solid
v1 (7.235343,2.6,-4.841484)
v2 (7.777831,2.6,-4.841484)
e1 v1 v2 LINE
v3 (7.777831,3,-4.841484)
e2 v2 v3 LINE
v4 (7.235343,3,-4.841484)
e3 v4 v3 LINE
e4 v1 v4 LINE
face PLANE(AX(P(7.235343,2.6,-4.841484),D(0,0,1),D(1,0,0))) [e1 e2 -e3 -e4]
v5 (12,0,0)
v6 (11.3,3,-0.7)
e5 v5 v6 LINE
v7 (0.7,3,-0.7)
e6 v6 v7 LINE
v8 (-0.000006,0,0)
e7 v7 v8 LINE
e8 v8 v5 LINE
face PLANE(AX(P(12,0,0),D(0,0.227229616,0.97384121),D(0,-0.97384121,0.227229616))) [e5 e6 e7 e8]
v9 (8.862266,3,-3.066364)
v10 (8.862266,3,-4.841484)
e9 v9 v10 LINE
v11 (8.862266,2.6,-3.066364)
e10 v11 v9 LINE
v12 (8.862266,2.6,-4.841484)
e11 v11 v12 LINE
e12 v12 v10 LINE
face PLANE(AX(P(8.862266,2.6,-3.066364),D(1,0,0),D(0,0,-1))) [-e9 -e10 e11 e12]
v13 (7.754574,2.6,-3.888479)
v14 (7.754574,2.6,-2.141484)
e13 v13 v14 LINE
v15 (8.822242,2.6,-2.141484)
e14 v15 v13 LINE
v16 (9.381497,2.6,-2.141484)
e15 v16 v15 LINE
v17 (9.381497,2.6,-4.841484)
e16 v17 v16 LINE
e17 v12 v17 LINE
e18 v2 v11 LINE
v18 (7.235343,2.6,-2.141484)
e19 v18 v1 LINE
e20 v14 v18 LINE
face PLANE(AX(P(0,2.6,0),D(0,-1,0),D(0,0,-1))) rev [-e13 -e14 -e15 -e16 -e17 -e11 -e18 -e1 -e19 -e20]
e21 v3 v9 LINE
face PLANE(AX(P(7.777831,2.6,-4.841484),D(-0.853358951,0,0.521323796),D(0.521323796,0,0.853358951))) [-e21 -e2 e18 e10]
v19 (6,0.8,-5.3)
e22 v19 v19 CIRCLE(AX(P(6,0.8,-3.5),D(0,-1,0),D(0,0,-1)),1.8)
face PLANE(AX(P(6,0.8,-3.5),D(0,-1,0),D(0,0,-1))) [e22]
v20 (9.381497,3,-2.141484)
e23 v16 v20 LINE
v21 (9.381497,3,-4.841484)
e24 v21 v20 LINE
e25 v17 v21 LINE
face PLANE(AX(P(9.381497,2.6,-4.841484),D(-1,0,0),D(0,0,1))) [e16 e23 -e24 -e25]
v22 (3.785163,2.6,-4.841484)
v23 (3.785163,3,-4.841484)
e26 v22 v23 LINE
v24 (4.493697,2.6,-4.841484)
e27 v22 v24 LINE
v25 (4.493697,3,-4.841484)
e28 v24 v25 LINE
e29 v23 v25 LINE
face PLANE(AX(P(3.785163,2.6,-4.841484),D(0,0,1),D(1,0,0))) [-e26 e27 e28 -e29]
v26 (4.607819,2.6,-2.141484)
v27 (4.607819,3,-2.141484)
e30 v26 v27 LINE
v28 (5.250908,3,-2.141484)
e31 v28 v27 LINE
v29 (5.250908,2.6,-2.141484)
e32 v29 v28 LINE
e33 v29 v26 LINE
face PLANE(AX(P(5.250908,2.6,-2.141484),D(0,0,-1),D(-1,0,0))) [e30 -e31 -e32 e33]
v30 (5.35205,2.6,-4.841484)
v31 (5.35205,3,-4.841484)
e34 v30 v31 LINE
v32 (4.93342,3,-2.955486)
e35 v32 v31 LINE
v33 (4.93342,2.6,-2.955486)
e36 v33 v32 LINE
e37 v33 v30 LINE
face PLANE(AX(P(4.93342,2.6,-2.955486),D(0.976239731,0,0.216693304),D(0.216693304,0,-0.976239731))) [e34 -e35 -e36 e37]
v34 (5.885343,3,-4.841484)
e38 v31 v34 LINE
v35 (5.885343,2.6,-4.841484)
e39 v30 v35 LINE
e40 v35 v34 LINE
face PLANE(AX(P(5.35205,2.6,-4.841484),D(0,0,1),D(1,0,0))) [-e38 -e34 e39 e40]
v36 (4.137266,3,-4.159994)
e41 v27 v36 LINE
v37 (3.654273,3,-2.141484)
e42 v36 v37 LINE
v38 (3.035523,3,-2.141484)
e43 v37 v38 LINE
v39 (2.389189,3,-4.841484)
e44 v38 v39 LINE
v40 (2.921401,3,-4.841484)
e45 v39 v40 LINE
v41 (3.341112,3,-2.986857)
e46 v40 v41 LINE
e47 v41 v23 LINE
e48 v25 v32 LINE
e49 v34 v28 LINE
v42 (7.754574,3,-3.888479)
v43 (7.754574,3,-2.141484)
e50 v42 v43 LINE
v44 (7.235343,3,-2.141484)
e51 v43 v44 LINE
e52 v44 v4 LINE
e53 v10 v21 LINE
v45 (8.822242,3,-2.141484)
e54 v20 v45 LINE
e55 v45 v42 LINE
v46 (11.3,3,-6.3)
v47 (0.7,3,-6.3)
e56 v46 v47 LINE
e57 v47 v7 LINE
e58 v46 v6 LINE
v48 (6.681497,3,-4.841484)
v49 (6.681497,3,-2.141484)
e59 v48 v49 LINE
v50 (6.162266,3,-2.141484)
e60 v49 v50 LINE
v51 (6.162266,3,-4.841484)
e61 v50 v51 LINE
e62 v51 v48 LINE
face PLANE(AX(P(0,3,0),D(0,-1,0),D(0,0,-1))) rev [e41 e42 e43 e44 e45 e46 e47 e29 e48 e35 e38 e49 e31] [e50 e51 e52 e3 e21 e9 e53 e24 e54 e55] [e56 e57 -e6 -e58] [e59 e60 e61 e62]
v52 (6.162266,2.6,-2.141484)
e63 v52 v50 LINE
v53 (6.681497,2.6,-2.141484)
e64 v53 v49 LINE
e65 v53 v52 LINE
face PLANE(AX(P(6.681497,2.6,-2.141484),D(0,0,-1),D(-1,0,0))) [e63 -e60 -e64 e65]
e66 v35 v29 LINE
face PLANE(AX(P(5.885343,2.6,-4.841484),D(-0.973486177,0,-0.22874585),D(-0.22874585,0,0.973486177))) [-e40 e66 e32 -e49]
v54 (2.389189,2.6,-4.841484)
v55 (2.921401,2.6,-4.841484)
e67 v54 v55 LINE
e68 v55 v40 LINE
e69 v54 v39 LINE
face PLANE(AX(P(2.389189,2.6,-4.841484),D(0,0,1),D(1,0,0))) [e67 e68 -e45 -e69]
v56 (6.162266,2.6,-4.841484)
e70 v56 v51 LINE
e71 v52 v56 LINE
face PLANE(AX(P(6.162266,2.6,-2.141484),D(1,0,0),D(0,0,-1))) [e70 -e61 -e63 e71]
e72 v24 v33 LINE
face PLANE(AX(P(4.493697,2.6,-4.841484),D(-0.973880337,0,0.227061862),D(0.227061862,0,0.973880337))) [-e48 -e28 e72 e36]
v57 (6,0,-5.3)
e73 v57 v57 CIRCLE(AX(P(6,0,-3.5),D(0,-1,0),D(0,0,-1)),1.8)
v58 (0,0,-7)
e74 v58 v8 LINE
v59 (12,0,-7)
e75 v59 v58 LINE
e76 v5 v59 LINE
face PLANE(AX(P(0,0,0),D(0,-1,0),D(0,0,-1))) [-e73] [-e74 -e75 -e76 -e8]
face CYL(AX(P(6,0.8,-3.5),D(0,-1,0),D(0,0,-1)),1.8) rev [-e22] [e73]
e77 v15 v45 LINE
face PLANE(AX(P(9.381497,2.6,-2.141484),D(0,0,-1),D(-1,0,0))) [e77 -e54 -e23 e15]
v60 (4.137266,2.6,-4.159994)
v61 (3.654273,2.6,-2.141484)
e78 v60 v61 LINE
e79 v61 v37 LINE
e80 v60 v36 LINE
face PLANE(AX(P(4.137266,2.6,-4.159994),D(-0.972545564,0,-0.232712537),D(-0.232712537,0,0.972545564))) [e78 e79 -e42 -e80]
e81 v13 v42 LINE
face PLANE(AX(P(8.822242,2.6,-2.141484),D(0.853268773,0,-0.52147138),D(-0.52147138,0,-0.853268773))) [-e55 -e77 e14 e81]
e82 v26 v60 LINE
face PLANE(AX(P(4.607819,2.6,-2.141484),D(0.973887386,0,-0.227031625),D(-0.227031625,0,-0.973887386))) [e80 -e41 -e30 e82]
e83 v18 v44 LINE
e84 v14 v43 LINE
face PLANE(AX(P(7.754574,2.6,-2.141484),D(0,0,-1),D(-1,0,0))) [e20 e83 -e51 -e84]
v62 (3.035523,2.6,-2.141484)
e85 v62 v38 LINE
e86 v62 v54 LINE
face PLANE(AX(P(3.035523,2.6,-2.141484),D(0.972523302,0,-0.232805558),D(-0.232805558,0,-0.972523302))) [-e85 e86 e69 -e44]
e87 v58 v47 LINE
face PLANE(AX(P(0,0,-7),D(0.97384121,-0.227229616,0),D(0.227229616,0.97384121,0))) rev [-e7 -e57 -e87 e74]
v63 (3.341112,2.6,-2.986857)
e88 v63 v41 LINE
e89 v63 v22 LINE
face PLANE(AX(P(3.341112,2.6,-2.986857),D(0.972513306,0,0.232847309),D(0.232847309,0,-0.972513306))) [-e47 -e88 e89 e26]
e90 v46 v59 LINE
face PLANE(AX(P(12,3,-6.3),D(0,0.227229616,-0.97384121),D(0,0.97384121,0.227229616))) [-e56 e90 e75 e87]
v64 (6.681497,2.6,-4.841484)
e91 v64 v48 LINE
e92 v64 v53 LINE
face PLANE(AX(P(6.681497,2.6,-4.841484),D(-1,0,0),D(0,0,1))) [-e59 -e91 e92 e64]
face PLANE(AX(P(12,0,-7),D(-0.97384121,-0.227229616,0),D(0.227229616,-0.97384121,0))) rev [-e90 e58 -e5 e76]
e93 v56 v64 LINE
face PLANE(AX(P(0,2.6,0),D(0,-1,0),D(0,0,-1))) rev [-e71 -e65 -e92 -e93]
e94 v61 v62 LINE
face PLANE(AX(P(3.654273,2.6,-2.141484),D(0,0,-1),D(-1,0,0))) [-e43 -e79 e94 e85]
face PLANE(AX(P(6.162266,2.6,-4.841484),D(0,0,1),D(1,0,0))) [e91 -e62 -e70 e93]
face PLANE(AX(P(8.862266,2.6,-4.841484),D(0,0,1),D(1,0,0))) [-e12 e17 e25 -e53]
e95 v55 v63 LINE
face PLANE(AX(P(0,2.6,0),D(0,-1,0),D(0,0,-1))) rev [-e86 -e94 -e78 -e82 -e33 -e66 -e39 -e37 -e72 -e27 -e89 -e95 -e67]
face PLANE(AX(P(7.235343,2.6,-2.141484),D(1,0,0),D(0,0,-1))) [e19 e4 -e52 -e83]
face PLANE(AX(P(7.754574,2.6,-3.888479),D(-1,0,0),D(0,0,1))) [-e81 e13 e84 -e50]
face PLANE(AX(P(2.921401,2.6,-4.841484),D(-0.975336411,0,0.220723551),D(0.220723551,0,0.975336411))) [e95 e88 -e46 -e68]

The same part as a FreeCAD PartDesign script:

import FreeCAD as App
import Part
import Sketcher

V = App.Vector
Q = App.Units.Quantity

doc = App.newDocument("Part")
params = doc.addObject("Spreadsheet::Sheet", "Params")
for row, (alias, value) in enumerate([
    ("sketch1_width", "12 mm"),
    ("sketch1_height", "7 mm"),
    ("pad1_length", "3 mm"),
    ("sketch2_height", "3 mm"),
    ("sketch2_width", "0.7 mm"),
    ("pocket1_length", "7 mm"),
    ("sketch3_width", "3 mm"),
    ("sketch3_height", "0.7 mm"),
    ("sketch4_diameter", "3.6 mm"),
    ("pocket3_length", "0.8 mm"),
    ("sketch5_height", "2.7 mm"),
    ("pocket4_length", "0.4 mm"),
], start=1):
    params.set(f"A{row}", alias)
    params.set(f"B{row}", "=" + value)
    params.setAlias(f"B{row}", alias)

body = doc.addObject("PartDesign::Body", "Body")

sketch1 = body.newObject("Sketcher::SketchObject", "Sketch")
sketch1.AttachmentSupport = (doc.getObject("XZ_Plane"), [""])
sketch1.MapMode = "FlatFace"
sketch1.addGeometry([
    Part.LineSegment(V(0, -7, 0), V(0, 0, 0)),
    Part.LineSegment(V(0, 0, 0), V(12, 0, 0)),
    Part.LineSegment(V(12, 0, 0), V(12, -7, 0)),
    Part.LineSegment(V(12, -7, 0), V(0, -7, 0)),
], False)
sketch1.addConstraint([
    Sketcher.Constraint("Coincident", 0, 2, 1, 1),
    Sketcher.Constraint("Coincident", 1, 2, 2, 1),
    Sketcher.Constraint("Coincident", 2, 2, 3, 1),
    Sketcher.Constraint("Coincident", 3, 2, 0, 1),
    Sketcher.Constraint("Vertical", 0),
    Sketcher.Constraint("Horizontal", 1),
    Sketcher.Constraint("Vertical", 2),
    Sketcher.Constraint("Horizontal", 3),
    Sketcher.Constraint("Coincident", 0, 2, -1, 1),
    Sketcher.Constraint("DistanceX", 1, 1, 1, 2, Q("12 mm")),
    Sketcher.Constraint("DistanceY", 0, 1, 0, 2, Q("7 mm")),
])
sketch1.setExpression("Constraints[9]", "Params.sketch1_width")
sketch1.setExpression("Constraints[10]", "Params.sketch1_height")
pad1 = body.newObject("PartDesign::Pad", "Pad")
pad1.Profile = sketch1
pad1.setExpression("Length", "Params.pad1_length")
pad1.Reversed = True

sketch2 = body.newObject("Sketcher::SketchObject", "Sketch001")
sketch2.AttachmentSupport = (doc.getObject("XY_Plane"), [""])
sketch2.MapMode = "FlatFace"
sketch2.addGeometry([
    Part.LineSegment(V(0, 0, 0), V(0.7, 3, 0)),
    Part.LineSegment(V(0.7, 3, 0), V(0, 3, 0)),
    Part.LineSegment(V(0, 3, 0), V(0, 0, 0)),
    Part.LineSegment(V(11.3, 3, 0), V(12, 0, 0)),
    Part.LineSegment(V(12, 0, 0), V(12, 3, 0)),
    Part.LineSegment(V(12, 3, 0), V(11.3, 3, 0)),
], False)
sketch2.addConstraint([
    Sketcher.Constraint("Coincident", 0, 2, 1, 1),
    Sketcher.Constraint("Coincident", 1, 2, 2, 1),
    Sketcher.Constraint("Coincident", 2, 2, 0, 1),
    Sketcher.Constraint("Coincident", 3, 2, 4, 1),
    Sketcher.Constraint("Coincident", 4, 2, 5, 1),
    Sketcher.Constraint("Coincident", 5, 2, 3, 1),
    Sketcher.Constraint("Horizontal", 1),
    Sketcher.Constraint("Vertical", 2),
    Sketcher.Constraint("Vertical", 4),
    Sketcher.Constraint("Horizontal", 5),
    Sketcher.Constraint("Coincident", 2, 2, -1, 1),
    Sketcher.Constraint("PointOnObject", 3, 2, -1),
    Sketcher.Constraint("Horizontal", 1, 2, 4, 2),
    Sketcher.Constraint("Equal", 1, 5),
    Sketcher.Constraint("DistanceY", 2, 2, 2, 1, Q("3 mm")),
    Sketcher.Constraint("DistanceX", 1, 2, 1, 1, Q("0.7 mm")),
    Sketcher.Constraint("DistanceX", -1, 1, 3, 2, Q("12 mm")),
])
sketch2.setExpression("Constraints[14]", "Params.sketch2_height")
sketch2.setExpression("Constraints[15]", "Params.sketch2_width")
pocket1 = body.newObject("PartDesign::Pocket", "Pocket")
pocket1.Profile = sketch2
pocket1.setExpression("Length", "Params.pocket1_length")

sketch3 = body.newObject("Sketcher::SketchObject", "Sketch002")
sketch3.AttachmentSupport = (doc.getObject("YZ_Plane"), [""])
sketch3.MapMode = "FlatFace"
sketch3.addGeometry([
    Part.LineSegment(V(0, 0, 0), V(3, -0.7, 0)),
    Part.LineSegment(V(3, -0.7, 0), V(3, 0, 0)),
    Part.LineSegment(V(3, 0, 0), V(0, 0, 0)),
    Part.LineSegment(V(3, -7, 0), V(3, -6.3, 0)),
    Part.LineSegment(V(3, -6.3, 0), V(0, -7, 0)),
    Part.LineSegment(V(0, -7, 0), V(3, -7, 0)),
], False)
sketch3.addConstraint([
    Sketcher.Constraint("Coincident", 0, 2, 1, 1),
    Sketcher.Constraint("Coincident", 1, 2, 2, 1),
    Sketcher.Constraint("Coincident", 2, 2, 0, 1),
    Sketcher.Constraint("Coincident", 3, 2, 4, 1),
    Sketcher.Constraint("Coincident", 4, 2, 5, 1),
    Sketcher.Constraint("Coincident", 5, 2, 3, 1),
    Sketcher.Constraint("Vertical", 1),
    Sketcher.Constraint("Horizontal", 2),
    Sketcher.Constraint("Vertical", 3),
    Sketcher.Constraint("Horizontal", 5),
    Sketcher.Constraint("Coincident", 2, 2, -1, 1),
    Sketcher.Constraint("PointOnObject", 4, 2, -2),
    Sketcher.Constraint("Vertical", 1, 2, 3, 2),
    Sketcher.Constraint("Equal", 1, 3),
    Sketcher.Constraint("DistanceX", 2, 2, 2, 1, Q("3 mm")),
    Sketcher.Constraint("DistanceY", 1, 1, 1, 2, Q("0.7 mm")),
    Sketcher.Constraint("DistanceY", 4, 2, -1, 1, Q("7 mm")),
])
sketch3.setExpression("Constraints[14]", "Params.sketch3_width")
sketch3.setExpression("Constraints[15]", "Params.sketch3_height")
pocket2 = body.newObject("PartDesign::Pocket", "Pocket001")
pocket2.Profile = sketch3
pocket2.Type = "ThroughAll"
pocket2.Midplane = True

sketch4 = body.newObject("Sketcher::SketchObject", "Sketch003")
sketch4.AttachmentSupport = (doc.getObject("XZ_Plane"), [""])
sketch4.MapMode = "FlatFace"
sketch4.addGeometry(Part.Circle(V(6, -3.5, 0), V(0, 0, 1), 1.8), False)
sketch4.addConstraint([
    Sketcher.Constraint("Diameter", 0, Q("3.6 mm")),
    Sketcher.Constraint("DistanceX", -1, 1, 0, 3, Q("6 mm")),
    Sketcher.Constraint("DistanceY", 0, 3, -1, 1, Q("3.5 mm")),
])
sketch4.setExpression("Constraints[0]", "Params.sketch4_diameter")
pocket3 = body.newObject("PartDesign::Pocket", "Pocket002")
pocket3.Profile = sketch4
pocket3.setExpression("Length", "Params.pocket3_length")

sketch5 = body.newObject("Sketcher::SketchObject", "Sketch004")
sketch5.AttachmentSupport = (doc.getObject("XZ_Plane"), [""])
sketch5.MapMode = "FlatFace"
sketch5.AttachmentOffset = App.Placement(V(0, 0, -3), App.Rotation())
sketch5.addGeometry([
    Part.LineSegment(V(2.4, -4.8, 0), V(3, -2.1, 0)),
    Part.LineSegment(V(3, -2.1, 0), V(3.7, -2.1, 0)),
    Part.LineSegment(V(3.7, -2.1, 0), V(4.1, -4.2, 0)),
    Part.LineSegment(V(4.1, -4.2, 0), V(4.6, -2.1, 0)),
    Part.LineSegment(V(4.6, -2.1, 0), V(5.3, -2.1, 0)),
    Part.LineSegment(V(5.3, -2.1, 0), V(5.9, -4.8, 0)),
    Part.LineSegment(V(5.9, -4.8, 0), V(5.4, -4.8, 0)),
    Part.LineSegment(V(5.4, -4.8, 0), V(4.9, -3, 0)),
    Part.LineSegment(V(4.9, -3, 0), V(4.5, -4.8, 0)),
    Part.LineSegment(V(4.5, -4.8, 0), V(3.8, -4.8, 0)),
    Part.LineSegment(V(3.8, -4.8, 0), V(3.3, -3, 0)),
    Part.LineSegment(V(3.3, -3, 0), V(2.9, -4.8, 0)),
    Part.LineSegment(V(2.9, -4.8, 0), V(2.4, -4.8, 0)),
    Part.LineSegment(V(6.2, -4.8, 0), V(6.2, -2.1, 0)),
    Part.LineSegment(V(6.2, -2.1, 0), V(6.7, -2.1, 0)),
    Part.LineSegment(V(6.7, -2.1, 0), V(6.7, -4.8, 0)),
    Part.LineSegment(V(6.7, -4.8, 0), V(6.2, -4.8, 0)),
    Part.LineSegment(V(7.2, -4.8, 0), V(7.2, -2.1, 0)),
    Part.LineSegment(V(7.2, -2.1, 0), V(7.8, -2.1, 0)),
    Part.LineSegment(V(7.8, -2.1, 0), V(7.8, -3.9, 0)),
    Part.LineSegment(V(7.8, -3.9, 0), V(8.8, -2.1, 0)),
    Part.LineSegment(V(8.8, -2.1, 0), V(9.4, -2.1, 0)),
    Part.LineSegment(V(9.4, -2.1, 0), V(9.4, -4.8, 0)),
    Part.LineSegment(V(9.4, -4.8, 0), V(8.9, -4.8, 0)),
    Part.LineSegment(V(8.9, -4.8, 0), V(8.9, -3.1, 0)),
    Part.LineSegment(V(8.9, -3.1, 0), V(7.8, -4.8, 0)),
    Part.LineSegment(V(7.8, -4.8, 0), V(7.2, -4.8, 0)),
], False)
sketch5.addConstraint([
    Sketcher.Constraint("Coincident", 0, 2, 1, 1),
    Sketcher.Constraint("Coincident", 1, 2, 2, 1),
    Sketcher.Constraint("Coincident", 2, 2, 3, 1),
    Sketcher.Constraint("Coincident", 3, 2, 4, 1),
    Sketcher.Constraint("Coincident", 4, 2, 5, 1),
    Sketcher.Constraint("Coincident", 5, 2, 6, 1),
    Sketcher.Constraint("Coincident", 6, 2, 7, 1),
    Sketcher.Constraint("Coincident", 7, 2, 8, 1),
    Sketcher.Constraint("Coincident", 8, 2, 9, 1),
    Sketcher.Constraint("Coincident", 9, 2, 10, 1),
    Sketcher.Constraint("Coincident", 10, 2, 11, 1),
    Sketcher.Constraint("Coincident", 11, 2, 12, 1),
    Sketcher.Constraint("Coincident", 12, 2, 0, 1),
    Sketcher.Constraint("Coincident", 13, 2, 14, 1),
    Sketcher.Constraint("Coincident", 14, 2, 15, 1),
    Sketcher.Constraint("Coincident", 15, 2, 16, 1),
    Sketcher.Constraint("Coincident", 16, 2, 13, 1),
    Sketcher.Constraint("Coincident", 17, 2, 18, 1),
    Sketcher.Constraint("Coincident", 18, 2, 19, 1),
    Sketcher.Constraint("Coincident", 19, 2, 20, 1),
    Sketcher.Constraint("Coincident", 20, 2, 21, 1),
    Sketcher.Constraint("Coincident", 21, 2, 22, 1),
    Sketcher.Constraint("Coincident", 22, 2, 23, 1),
    Sketcher.Constraint("Coincident", 23, 2, 24, 1),
    Sketcher.Constraint("Coincident", 24, 2, 25, 1),
    Sketcher.Constraint("Coincident", 25, 2, 26, 1),
    Sketcher.Constraint("Coincident", 26, 2, 17, 1),
    Sketcher.Constraint("Horizontal", 1),
    Sketcher.Constraint("Horizontal", 4),
    Sketcher.Constraint("Horizontal", 6),
    Sketcher.Constraint("Horizontal", 9),
    Sketcher.Constraint("Horizontal", 12),
    Sketcher.Constraint("Vertical", 13),
    Sketcher.Constraint("Horizontal", 14),
    Sketcher.Constraint("Vertical", 15),
    Sketcher.Constraint("Horizontal", 16),
    Sketcher.Constraint("Vertical", 17),
    Sketcher.Constraint("Horizontal", 18),
    Sketcher.Constraint("Vertical", 19),
    Sketcher.Constraint("Horizontal", 21),
    Sketcher.Constraint("Vertical", 22),
    Sketcher.Constraint("Horizontal", 23),
    Sketcher.Constraint("Vertical", 24),
    Sketcher.Constraint("Horizontal", 26),
    Sketcher.Constraint("Horizontal", 1, 2, 3, 2),
    Sketcher.Constraint("Horizontal", 6, 2, 8, 2),
    Sketcher.Constraint("Horizontal", 9, 2, 11, 2),
    Sketcher.Constraint("Horizontal", 4, 2, 13, 2),
    Sketcher.Constraint("Horizontal", 12, 2, 15, 2),
    Sketcher.Constraint("Horizontal", 14, 2, 17, 2),
    Sketcher.Constraint("Horizontal", 18, 2, 20, 2),
    Sketcher.Constraint("Horizontal", 16, 2, 22, 2),
    Sketcher.Constraint("Horizontal", 23, 2, 25, 2),
    Sketcher.Constraint("Equal", 16, 18),
    Sketcher.Constraint("Equal", 18, 23),
    Sketcher.Constraint("DistanceY", 13, 1, 13, 2, Q("2.7 mm")),
    Sketcher.Constraint("DistanceX", 14, 2, 21, 2, Q("2.7 mm")),
    Sketcher.Constraint("DistanceX", 5, 2, 26, 2, Q("1.35 mm")),
    Sketcher.Constraint("DistanceX", 2, 2, 16, 2, Q("2.025 mm")),
    Sketcher.Constraint("Distance", 7, Q("1.9319 mm")),
    Sketcher.Constraint("DistanceX", 1, 1, 1, 2, Q("0.61875 mm")),
    Sketcher.Constraint("DistanceX", 4, 1, 4, 2, Q("0.643089 mm")),
    Sketcher.Constraint("DistanceX", 12, 2, 12, 1, Q("0.532212 mm")),
    Sketcher.Constraint("DistanceX", 14, 1, 14, 2, Q("0.519231 mm")),
    Sketcher.Constraint("DistanceY", 24, 1, 24, 2, Q("1.77512 mm")),
    Sketcher.Constraint("DistanceX", -1, 1, 11, 2, Q("2.921401 mm")),
    Sketcher.Constraint("DistanceX", 3, 2, 7, 2, Q("0.325601 mm")),
    Sketcher.Constraint("DistanceX", 8, 2, 15, 2, Q("2.1878 mm")),
    Sketcher.Constraint("DistanceX", 17, 2, 20, 2, Q("1.586899 mm")),
    Sketcher.Constraint("Distance", 2, Q("2.075491 mm")),
    Sketcher.Constraint("Distance", 3, Q("2.072631 mm")),
    Sketcher.Constraint("Distance", 8, Q("1.93658 mm")),
    Sketcher.Constraint("DistanceX", 6, 2, 6, 1, Q("0.533293 mm")),
    Sketcher.Constraint("DistanceX", 9, 2, 9, 1, Q("0.708534 mm")),
    Sketcher.Constraint("DistanceX", 21, 1, 21, 2, Q("0.559255 mm")),
    Sketcher.Constraint("DistanceX", 26, 2, 26, 1, Q("0.542488 mm")),
    Sketcher.Constraint("DistanceY", 19, 2, 19, 1, Q("1.746995 mm")),
    Sketcher.Constraint("DistanceX", -1, 1, 3, 2, Q("4.607819 mm")),
    Sketcher.Constraint("DistanceY", 19, 2, -1, 1, Q("3.888479 mm")),
    Sketcher.Constraint("DistanceX", 0, 2, 10, 2, Q("0.305589 mm")),
    Sketcher.Constraint("DistanceY", 10, 2, 7, 2, Q("0.03137 mm")),
])
sketch5.setExpression("Constraints[55]", "Params.sketch5_height")
pocket4 = body.newObject("PartDesign::Pocket", "Pocket003")
pocket4.Profile = sketch5
pocket4.setExpression("Length", "Params.pocket4_length")
pocket4.Reversed = True

doc.recompute()
